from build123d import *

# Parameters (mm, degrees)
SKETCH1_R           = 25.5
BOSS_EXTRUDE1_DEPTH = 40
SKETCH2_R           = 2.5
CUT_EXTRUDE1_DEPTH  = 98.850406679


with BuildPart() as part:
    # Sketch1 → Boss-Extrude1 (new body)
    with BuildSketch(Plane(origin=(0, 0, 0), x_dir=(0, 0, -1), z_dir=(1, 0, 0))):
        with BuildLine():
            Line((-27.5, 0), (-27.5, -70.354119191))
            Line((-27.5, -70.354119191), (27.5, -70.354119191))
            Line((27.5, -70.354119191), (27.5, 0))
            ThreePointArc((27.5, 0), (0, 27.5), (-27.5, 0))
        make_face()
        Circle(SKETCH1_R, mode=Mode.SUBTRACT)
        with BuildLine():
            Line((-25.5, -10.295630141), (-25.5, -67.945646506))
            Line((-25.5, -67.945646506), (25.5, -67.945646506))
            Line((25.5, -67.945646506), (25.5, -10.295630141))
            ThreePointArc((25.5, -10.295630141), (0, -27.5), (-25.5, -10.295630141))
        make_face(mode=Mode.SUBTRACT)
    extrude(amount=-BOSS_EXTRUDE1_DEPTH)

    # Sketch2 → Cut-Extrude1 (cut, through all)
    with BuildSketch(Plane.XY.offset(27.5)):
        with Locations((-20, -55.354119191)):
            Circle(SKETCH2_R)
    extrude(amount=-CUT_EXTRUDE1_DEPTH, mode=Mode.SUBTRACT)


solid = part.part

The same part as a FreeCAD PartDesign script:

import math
import FreeCAD as App
import Part
import Sketcher
from FreeCAD import Vector
Q = App.Units.Quantity

doc = App.newDocument("Part")
body = doc.addObject("PartDesign::Body", "Body")

sketch1 = body.newObject("Sketcher::SketchObject", "Sketch")
sketch1.AttachmentSupport = (doc.getObject("YZ_Plane"), [""])
sketch1.MapMode = "FlatFace"
sketch1.addGeometry([
    Part.LineSegment(Vector(0, 27.5, 0), Vector(-70.354119, 27.5, 0)),
    Part.LineSegment(Vector(-70.354119, 27.5, 0), Vector(-70.354119, -27.5, 0)),
    Part.LineSegment(Vector(-70.354119, -27.5, 0), Vector(0, -27.5, 0)),
    Part.ArcOfCircle(Part.Circle(Vector(0, 0, 0), Vector(0, 0, 1), 27.5), math.radians(-90), math.radians(90)),
    Part.LineSegment(Vector(-67.945647, 25.5, 0), Vector(-10.29563, 25.5, 0)),
    Part.ArcOfCircle(Part.Circle(Vector(0, 0, 0), Vector(0, 0, 1), 27.5), math.radians(111.986403), math.radians(248.013597)),
    Part.LineSegment(Vector(-10.29563, -25.5, 0), Vector(-67.945647, -25.5, 0)),
    Part.LineSegment(Vector(-67.945647, -25.5, 0), Vector(-67.945647, 25.5, 0)),
    Part.Circle(Vector(0, 0, 0), Vector(0, 0, 1), 25.5),
], False)
sketch1.addConstraint([
    Sketcher.Constraint("Coincident", 0, 2, 1, 1),
    Sketcher.Constraint("Coincident", 1, 2, 2, 1),
    Sketcher.Constraint("Tangent", 2, 2, 3, 1),
    Sketcher.Constraint("Tangent", 3, 2, 0, 1),
    Sketcher.Constraint("Coincident", 4, 2, 5, 1),
    Sketcher.Constraint("Coincident", 5, 2, 6, 1),
    Sketcher.Constraint("Coincident", 6, 2, 7, 1),
    Sketcher.Constraint("Coincident", 7, 2, 4, 1),
    Sketcher.Constraint("Horizontal", 0),
    Sketcher.Constraint("Vertical", 1),
    Sketcher.Constraint("Horizontal", 2),
    Sketcher.Constraint("Horizontal", 4),
    Sketcher.Constraint("Horizontal", 6),
    Sketcher.Constraint("Vertical", 7),
    Sketcher.Constraint("Coincident", 3, 3, -1, 1),
    Sketcher.Constraint("Coincident", 5, 3, -1, 1),
    Sketcher.Constraint("Coincident", 8, 3, -1, 1),
    Sketcher.Constraint("Equal", 3, 5),
    Sketcher.Constraint("Vertical", 4, 2, 5, 2),
    Sketcher.Constraint("Diameter", 8, Q("51 mm")),
    Sketcher.Constraint("Radius", 3, Q("27.5 mm")),
    Sketcher.Constraint("DistanceY", 7, 1, 7, 2, Q("51 mm")),
    Sketcher.Constraint("DistanceX", 0, 2, 0, 1, Q("70.354119 mm")),
    Sketcher.Constraint("DistanceX", 4, 1, 4, 2, Q("57.650016 mm")),
])
pad1 = body.newObject("PartDesign::Pad", "Pad")
pad1.Profile = sketch1
pad1.Length = 40
pad1.Reversed = True

sketch2 = body.newObject("Sketcher::SketchObject", "Sketch001")
sketch2.AttachmentSupport = (doc.getObject("XY_Plane"), [""])
sketch2.MapMode = "FlatFace"
sketch2.AttachmentOffset = App.Placement(Vector(0, 0, 27.5), App.Rotation())
sketch2.addGeometry(Part.Circle(Vector(-20, -55.354119, 0), Vector(0, 0, 1), 2.5), False)
sketch2.addConstraint([
    Sketcher.Constraint("Diameter", 0, Q("5 mm")),
    Sketcher.Constraint("DistanceX", 0, 3, -1, 1, Q("20 mm")),
    Sketcher.Constraint("DistanceY", 0, 3, -1, 1, Q("55.354119 mm")),
])
pocket1 = body.newObject("PartDesign::Pocket", "Pocket")
pocket1.Profile = sketch2
pocket1.Type = "ThroughAll"

doc.recompute()
